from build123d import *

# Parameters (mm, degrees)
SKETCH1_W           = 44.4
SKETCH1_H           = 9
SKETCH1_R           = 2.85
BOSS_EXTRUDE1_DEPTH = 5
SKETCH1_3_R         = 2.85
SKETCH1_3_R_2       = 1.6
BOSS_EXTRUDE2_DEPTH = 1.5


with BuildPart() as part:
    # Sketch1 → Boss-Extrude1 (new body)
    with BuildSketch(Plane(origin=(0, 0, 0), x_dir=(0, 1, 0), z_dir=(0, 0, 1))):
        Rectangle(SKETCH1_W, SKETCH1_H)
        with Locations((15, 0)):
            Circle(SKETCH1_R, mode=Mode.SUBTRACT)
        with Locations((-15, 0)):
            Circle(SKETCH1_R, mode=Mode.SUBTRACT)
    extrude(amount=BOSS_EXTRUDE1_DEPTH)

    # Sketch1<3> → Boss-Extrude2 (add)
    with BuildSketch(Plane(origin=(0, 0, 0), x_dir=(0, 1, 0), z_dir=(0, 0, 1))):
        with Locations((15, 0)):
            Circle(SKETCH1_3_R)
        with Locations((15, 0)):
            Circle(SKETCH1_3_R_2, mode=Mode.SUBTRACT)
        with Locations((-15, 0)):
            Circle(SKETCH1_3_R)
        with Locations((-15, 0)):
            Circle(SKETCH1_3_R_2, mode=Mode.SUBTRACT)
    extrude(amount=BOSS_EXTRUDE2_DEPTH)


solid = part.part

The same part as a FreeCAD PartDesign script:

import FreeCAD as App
import Part
import Sketcher
from FreeCAD import Vector

doc = App.newDocument("Part")
body = doc.addObject("PartDesign::Body", "Body")

sketch1 = body.newObject("Sketcher::SketchObject", "Sketch")
sketch1.AttachmentSupport = (doc.getObject("XY_Plane"), [""])
sketch1.MapMode = "FlatFace"
sketch1.addGeometry([
    Part.LineSegment(Vector(-4.5, -22.2, 0), Vector(4.5, -22.2, 0)),
    Part.LineSegment(Vector(4.5, -22.2, 0), Vector(4.5, 22.2, 0)),
    Part.LineSegment(Vector(4.5, 22.2, 0), Vector(-4.5, 22.2, 0)),
    Part.LineSegment(Vector(-4.5, 22.2, 0), Vector(-4.5, -22.2, 0)),
    Part.Circle(Vector(0, -15, 0), Vector(0, 0, 1), 2.85),
    Part.Circle(Vector(0, 15, 0), Vector(0, 0, 1), 2.85),
], False)
sketch1.addConstraint([
    Sketcher.Constraint("Coincident", 0, 2, 1, 1),
    Sketcher.Constraint("Coincident", 1, 2, 2, 1),
    Sketcher.Constraint("Coincident", 2, 2, 3, 1),
    Sketcher.Constraint("Coincident", 3, 2, 0, 1),
    Sketcher.Constraint("Horizontal", 0),
    Sketcher.Constraint("Vertical", 1),
    Sketcher.Constraint("Horizontal", 2),
    Sketcher.Constraint("Vertical", 3),
    Sketcher.Constraint("Equal", 4, 5),
    Sketcher.Constraint("Symmetric", 4, 3, 5, 3, -1, 1),
    Sketcher.Constraint("Symmetric", 0, 2, 2, 2, -1, 1),
    Sketcher.Constraint("PointOnObject", 4, 3, -2),
    Sketcher.Constraint("Diameter", 4, 5.7),
    Sketcher.Constraint("DistanceX", 0, 1, 0, 2, 9.0),
    Sketcher.Constraint("DistanceY", 1, 1, 1, 2, 44.4),
    Sketcher.Constraint("DistanceY", 4, 3, -1, 1, 15.0),
])
pad1 = body.newObject("PartDesign::Pad", "Pad")
pad1.Profile = sketch1
pad1.Length = 5

sketch2 = body.newObject("Sketcher::SketchObject", "Sketch001")
sketch2.AttachmentSupport = (doc.getObject("XY_Plane"), [""])
sketch2.MapMode = "FlatFace"
sketch2.addGeometry([
    Part.Circle(Vector(0, 15, 0), Vector(0, 0, 1), 2.85),
    Part.Circle(Vector(0, 15, 0), Vector(0, 0, 1), 1.6),
    Part.Circle(Vector(0, -15, 0), Vector(0, 0, 1), 2.85),
    Part.Circle(Vector(0, -15, 0), Vector(0, 0, 1), 1.6),
], False)
sketch2.addConstraint([
    Sketcher.Constraint("Coincident", 1, 3, 0, 3),
    Sketcher.Constraint("Coincident", 3, 3, 2, 3),
    Sketcher.Constraint("Equal", 0, 2),
    Sketcher.Constraint("Equal", 1, 3),
    Sketcher.Constraint("Symmetric", 0, 3, 2, 3, -1, 1),
    Sketcher.Constraint("PointOnObject", 0, 3, -2),
    Sketcher.Constraint("Diameter", 0, 5.7),
    Sketcher.Constraint("Diameter", 1, 3.2),
    Sketcher.Constraint("DistanceY", -1, 1, 0, 3, 15.0),
])
pad2 = body.newObject("PartDesign::Pad", "Pad001")
pad2.Profile = sketch2
pad2.Length = 1.5

doc.recompute()
